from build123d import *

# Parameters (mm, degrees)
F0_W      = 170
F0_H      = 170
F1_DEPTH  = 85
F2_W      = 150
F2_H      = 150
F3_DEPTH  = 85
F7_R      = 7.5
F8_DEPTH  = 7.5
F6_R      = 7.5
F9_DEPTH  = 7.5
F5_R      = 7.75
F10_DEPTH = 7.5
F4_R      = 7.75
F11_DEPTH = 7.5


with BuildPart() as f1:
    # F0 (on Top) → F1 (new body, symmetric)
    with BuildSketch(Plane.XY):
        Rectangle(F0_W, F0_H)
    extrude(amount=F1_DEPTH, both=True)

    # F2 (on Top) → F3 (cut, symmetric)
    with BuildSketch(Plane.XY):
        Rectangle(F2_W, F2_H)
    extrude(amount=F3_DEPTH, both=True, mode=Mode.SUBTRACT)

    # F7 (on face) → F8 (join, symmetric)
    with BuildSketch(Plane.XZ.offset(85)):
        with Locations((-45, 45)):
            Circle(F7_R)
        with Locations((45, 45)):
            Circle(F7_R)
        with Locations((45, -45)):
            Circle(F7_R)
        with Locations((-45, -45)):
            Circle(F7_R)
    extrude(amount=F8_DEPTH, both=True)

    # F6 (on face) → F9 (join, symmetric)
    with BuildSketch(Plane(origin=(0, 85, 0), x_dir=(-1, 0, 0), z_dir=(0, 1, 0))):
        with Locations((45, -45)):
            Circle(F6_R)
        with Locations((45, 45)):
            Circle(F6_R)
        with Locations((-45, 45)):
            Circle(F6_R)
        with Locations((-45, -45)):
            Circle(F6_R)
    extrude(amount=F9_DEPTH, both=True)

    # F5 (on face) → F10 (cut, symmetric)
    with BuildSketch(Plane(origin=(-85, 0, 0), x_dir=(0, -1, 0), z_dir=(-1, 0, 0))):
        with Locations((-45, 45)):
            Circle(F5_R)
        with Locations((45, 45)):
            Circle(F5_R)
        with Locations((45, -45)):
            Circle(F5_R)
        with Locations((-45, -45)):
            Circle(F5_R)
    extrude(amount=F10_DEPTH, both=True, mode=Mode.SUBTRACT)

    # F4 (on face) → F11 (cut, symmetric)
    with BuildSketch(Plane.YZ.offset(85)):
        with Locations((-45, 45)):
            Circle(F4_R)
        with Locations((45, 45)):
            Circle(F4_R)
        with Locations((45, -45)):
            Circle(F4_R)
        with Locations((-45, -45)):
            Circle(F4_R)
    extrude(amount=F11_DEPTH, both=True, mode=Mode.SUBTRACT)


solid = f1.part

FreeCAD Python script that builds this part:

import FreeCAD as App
import Part
import Sketcher

V = App.Vector

doc = App.newDocument("Part")
body = doc.addObject("PartDesign::Body", "Body")

# Sketch on XY plane
sketch1 = body.newObject("Sketcher::SketchObject", "Sketch")
sketch1.AttachmentSupport = (doc.getObject("XY_Plane"), [""])
sketch1.MapMode = "FlatFace"
sketch1.addGeometry(Part.LineSegment(V(-85, 85, 0), V(-85, -85, 0)), False)
sketch1.addGeometry(Part.LineSegment(V(-85, -85, 0), V(85, -85, 0)), False)
sketch1.addGeometry(Part.LineSegment(V(85, -85, 0), V(85, 85, 0)), False)
sketch1.addGeometry(Part.LineSegment(V(85, 85, 0), V(-85, 85, 0)), False)
sketch1.addConstraint(Sketcher.Constraint("Coincident", 0, 2, 1, 1))
sketch1.addConstraint(Sketcher.Constraint("Coincident", 1, 2, 2, 1))
sketch1.addConstraint(Sketcher.Constraint("Coincident", 2, 2, 3, 1))
sketch1.addConstraint(Sketcher.Constraint("Coincident", 3, 2, 0, 1))
sketch1.addConstraint(Sketcher.Constraint("Vertical", 0))
sketch1.addConstraint(Sketcher.Constraint("Horizontal", 1))
sketch1.addConstraint(Sketcher.Constraint("Vertical", 2))
sketch1.addConstraint(Sketcher.Constraint("Horizontal", 3))
sketch1.addConstraint(Sketcher.Constraint("Symmetric", 0, 2, 2, 2, -1, 1))
sketch1.addConstraint(Sketcher.Constraint("Equal", 3, 0))
sketch1.addConstraint(Sketcher.Constraint("DistanceX", 1, 1, 1, 2, 170.0))
pad1 = body.newObject("PartDesign::Pad", "Pad")
pad1.Profile = sketch1
pad1.Length = 170
pad1.Midplane = True

# Sketch on XY plane
sketch2 = body.newObject("Sketcher::SketchObject", "Sketch001")
sketch2.AttachmentSupport = (doc.getObject("XY_Plane"), [""])
sketch2.MapMode = "FlatFace"
sketch2.addGeometry(Part.LineSegment(V(-75, 75, 0), V(-75, -75, 0)), False)
sketch2.addGeometry(Part.LineSegment(V(-75, -75, 0), V(75, -75, 0)), False)
sketch2.addGeometry(Part.LineSegment(V(75, -75, 0), V(75, 75, 0)), False)
sketch2.addGeometry(Part.LineSegment(V(75, 75, 0), V(-75, 75, 0)), False)
sketch2.addConstraint(Sketcher.Constraint("Coincident", 0, 2, 1, 1))
sketch2.addConstraint(Sketcher.Constraint("Coincident", 1, 2, 2, 1))
sketch2.addConstraint(Sketcher.Constraint("Coincident", 2, 2, 3, 1))
sketch2.addConstraint(Sketcher.Constraint("Coincident", 3, 2, 0, 1))
sketch2.addConstraint(Sketcher.Constraint("Vertical", 0))
sketch2.addConstraint(Sketcher.Constraint("Horizontal", 1))
sketch2.addConstraint(Sketcher.Constraint("Vertical", 2))
sketch2.addConstraint(Sketcher.Constraint("Horizontal", 3))
sketch2.addConstraint(Sketcher.Constraint("Symmetric", 0, 2, 2, 2, -1, 1))
sketch2.addConstraint(Sketcher.Constraint("Equal", 3, 0))
sketch2.addConstraint(Sketcher.Constraint("DistanceX", 1, 1, 1, 2, 150.0))
pocket1 = body.newObject("PartDesign::Pocket", "Pocket")
pocket1.Profile = sketch2
pocket1.Length = 170
pocket1.Midplane = True

# Sketch on XZ plane
sketch3 = body.newObject("Sketcher::SketchObject", "Sketch002")
sketch3.AttachmentSupport = (doc.getObject("XZ_Plane"), [""])
sketch3.MapMode = "FlatFace"
sketch3.AttachmentOffset = App.Placement(V(0, 0, 85), App.Rotation())
sketch3.addGeometry(Part.Circle(V(-45, 45, 0), V(0, 0, 1), 8), False)
sketch3.addGeometry(Part.Circle(V(45, 45, 0), V(0, 0, 1), 8), False)
sketch3.addGeometry(Part.Circle(V(45, -45, 0), V(0, 0, 1), 8), False)
sketch3.addGeometry(Part.Circle(V(-45, -45, 0), V(0, 0, 1), 8), False)
sketch3.addConstraint(Sketcher.Constraint("Equal", 0, 1))
sketch3.addConstraint(Sketcher.Constraint("Equal", 1, 2))
sketch3.addConstraint(Sketcher.Constraint("Equal", 2, 3))
sketch3.addConstraint(Sketcher.Constraint("Symmetric", 0, 3, 2, 3, -1, 1))
sketch3.addConstraint(Sketcher.Constraint("Symmetric", 1, 3, 3, 3, -1, 1))
sketch3.addConstraint(Sketcher.Constraint("Symmetric", 0, 3, 1, 3, -2))
sketch3.addConstraint(Sketcher.Constraint("Diameter", 0, 15.0))
sketch3.addConstraint(Sketcher.Constraint("DistanceX", 0, 3, -1, 1, 45.0))
sketch3.addConstraint(Sketcher.Constraint("DistanceY", -1, 1, 0, 3, 45.0))
pad2 = body.newObject("PartDesign::Pad", "Pad001")
pad2.Profile = sketch3
pad2.Length = 15
pad2.Midplane = True

# Sketch on XZ plane
sketch4 = body.newObject("Sketcher::SketchObject", "Sketch003")
sketch4.AttachmentSupport = (doc.getObject("XZ_Plane"), [""])
sketch4.MapMode = "FlatFace"
sketch4.AttachmentOffset = App.Placement(V(0, 0, -85), App.Rotation())
sketch4.addGeometry(Part.Circle(V(-45, -45, 0), V(0, 0, 1), 8), False)
sketch4.addGeometry(Part.Circle(V(-45, 45, 0), V(0, 0, 1), 8), False)
sketch4.addGeometry(Part.Circle(V(45, 45, 0), V(0, 0, 1), 8), False)
sketch4.addGeometry(Part.Circle(V(45, -45, 0), V(0, 0, 1), 8), False)
sketch4.addConstraint(Sketcher.Constraint("Equal", 0, 1))
sketch4.addConstraint(Sketcher.Constraint("Equal", 1, 2))
sketch4.addConstraint(Sketcher.Constraint("Equal", 2, 3))
sketch4.addConstraint(Sketcher.Constraint("Symmetric", 0, 3, 2, 3, -1, 1))
sketch4.addConstraint(Sketcher.Constraint("Symmetric", 1, 3, 3, 3, -1, 1))
sketch4.addConstraint(Sketcher.Constraint("Symmetric", 1, 3, 2, 3, -2))
sketch4.addConstraint(Sketcher.Constraint("Diameter", 0, 15.0))
sketch4.addConstraint(Sketcher.Constraint("DistanceX", 0, 3, -1, 1, 45.0))
sketch4.addConstraint(Sketcher.Constraint("DistanceY", 0, 3, -1, 1, 45.0))
pad3 = body.newObject("PartDesign::Pad", "Pad002")
pad3.Profile = sketch4
pad3.Length = 15
pad3.Midplane = True

# Sketch on YZ plane
sketch5 = body.newObject("Sketcher::SketchObject", "Sketch004")
sketch5.AttachmentSupport = (doc.getObject("YZ_Plane"), [""])
sketch5.MapMode = "FlatFace"
sketch5.AttachmentOffset = App.Placement(V(0, 0, -85), App.Rotation())
sketch5.addGeometry(Part.Circle(V(45, 45, 0), V(0, 0, 1), 8), False)
sketch5.addGeometry(Part.Circle(V(-45, 45, 0), V(0, 0, 1), 8), False)
sketch5.addGeometry(Part.Circle(V(-45, -45, 0), V(0, 0, 1), 8), False)
sketch5.addGeometry(Part.Circle(V(45, -45, 0), V(0, 0, 1), 8), False)
sketch5.addConstraint(Sketcher.Constraint("Equal", 0, 1))
sketch5.addConstraint(Sketcher.Constraint("Equal", 1, 2))
sketch5.addConstraint(Sketcher.Constraint("Equal", 2, 3))
sketch5.addConstraint(Sketcher.Constraint("Symmetric", 0, 3, 2, 3, -1, 1))
sketch5.addConstraint(Sketcher.Constraint("Symmetric", 1, 3, 3, 3, -1, 1))
sketch5.addConstraint(Sketcher.Constraint("Symmetric", 0, 3, 1, 3, -2))
sketch5.addConstraint(Sketcher.Constraint("Diameter", 0, 15.5))
sketch5.addConstraint(Sketcher.Constraint("DistanceX", -1, 1, 0, 3, 45.0))
sketch5.addConstraint(Sketcher.Constraint("DistanceY", -1, 1, 0, 3, 45.0))
pocket2 = body.newObject("PartDesign::Pocket", "Pocket001")
pocket2.Profile = sketch5
pocket2.Length = 15
pocket2.Midplane = True

# Sketch on YZ plane
sketch6 = body.newObject("Sketcher::SketchObject", "Sketch005")
sketch6.AttachmentSupport = (doc.getObject("YZ_Plane"), [""])
sketch6.MapMode = "FlatFace"
sketch6.AttachmentOffset = App.Placement(V(0, 0, 85), App.Rotation())
sketch6.addGeometry(Part.Circle(V(-45, 45, 0), V(0, 0, 1), 8), False)
sketch6.addGeometry(Part.Circle(V(45, 45, 0), V(0, 0, 1), 8), False)
sketch6.addGeometry(Part.Circle(V(45, -45, 0), V(0, 0, 1), 8), False)
sketch6.addGeometry(Part.Circle(V(-45, -45, 0), V(0, 0, 1), 8), False)
sketch6.addConstraint(Sketcher.Constraint("Equal", 0, 1))
sketch6.addConstraint(Sketcher.Constraint("Equal", 1, 2))
sketch6.addConstraint(Sketcher.Constraint("Equal", 2, 3))
sketch6.addConstraint(Sketcher.Constraint("Symmetric", 0, 3, 2, 3, -1, 1))
sketch6.addConstraint(Sketcher.Constraint("Symmetric", 1, 3, 3, 3, -1, 1))
sketch6.addConstraint(Sketcher.Constraint("Symmetric", 0, 3, 1, 3, -2))
sketch6.addConstraint(Sketcher.Constraint("Diameter", 0, 15.5))
sketch6.addConstraint(Sketcher.Constraint("DistanceX", 0, 3, -1, 1, 45.0))
sketch6.addConstraint(Sketcher.Constraint("DistanceY", -1, 1, 0, 3, 45.0))
pocket3 = body.newObject("PartDesign::Pocket", "Pocket002")
pocket3.Profile = sketch6
pocket3.Length = 15
pocket3.Midplane = True

doc.recompute()
